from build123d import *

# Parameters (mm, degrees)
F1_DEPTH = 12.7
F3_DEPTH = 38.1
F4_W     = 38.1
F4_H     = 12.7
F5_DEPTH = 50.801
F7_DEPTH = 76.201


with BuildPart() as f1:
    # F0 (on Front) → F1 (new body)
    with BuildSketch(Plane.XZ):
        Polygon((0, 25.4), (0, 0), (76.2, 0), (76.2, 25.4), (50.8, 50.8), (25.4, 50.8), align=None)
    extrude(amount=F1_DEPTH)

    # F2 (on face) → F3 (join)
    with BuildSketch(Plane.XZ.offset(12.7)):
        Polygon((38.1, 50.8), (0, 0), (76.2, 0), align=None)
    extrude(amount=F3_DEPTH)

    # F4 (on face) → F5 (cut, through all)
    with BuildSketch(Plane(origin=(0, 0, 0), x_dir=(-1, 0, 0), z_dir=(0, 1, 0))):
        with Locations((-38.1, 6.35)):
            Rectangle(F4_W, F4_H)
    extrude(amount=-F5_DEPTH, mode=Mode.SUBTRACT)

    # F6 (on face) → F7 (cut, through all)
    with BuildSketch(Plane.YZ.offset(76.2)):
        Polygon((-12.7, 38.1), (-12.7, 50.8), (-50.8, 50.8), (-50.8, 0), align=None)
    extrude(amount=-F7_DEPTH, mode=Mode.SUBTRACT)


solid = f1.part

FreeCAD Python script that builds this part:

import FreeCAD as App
import Part
import Sketcher
from FreeCAD import Vector
Q = App.Units.Quantity


def add_polygon(sketch, points):
    """Adds a closed chain of lines whose ends are joined by coincident constraints."""
    first, n = sketch.GeometryCount, len(points)
    for a, b in zip(points, points[1:] + points[:1]):
        sketch.addGeometry(Part.LineSegment(App.Vector(*a, 0), App.Vector(*b, 0)), False)
    for i in range(n):
        sketch.addConstraint(Sketcher.Constraint("Coincident", first + i, 2, first + (i + 1) % n, 1))

doc = App.newDocument("Part")
params = doc.addObject("Spreadsheet::Sheet", "Params")
for row, (alias, value) in enumerate([
    ("sketch1_width", "3 in"),
    ("sketch1_width2", "1 in"),
    ("pad1_length", "0.5 in"),
    ("sketch2_width", "3 in"),
    ("pad2_length", "1.5 in"),
    ("sketch3_width", "1.5 in"),
    ("sketch3_height", "0.5 in"),
    ("sketch4_height", "2 in"),
    ("sketch4_width", "1.5 in"),
    ("sketch4_height2", "0.5 in"),
], start=1):
    params.set(f"A{row}", alias)
    params.set(f"B{row}", "=" + value)
    params.setAlias(f"B{row}", alias)

body = doc.addObject("PartDesign::Body", "Body")

sketch1 = doc.addObject("Sketcher::SketchObject", "Sketch")
body.addObject(sketch1)
sketch1.AttachmentSupport = (doc.XZ_Plane, [""])
sketch1.MapMode = "FlatFace"
add_polygon(sketch1, [(0, 25), (0, 0), (76, 0), (76, 25), (51, 51), (25, 51)])
sketch1.addConstraint([
    Sketcher.Constraint("Vertical", 0),
    Sketcher.Constraint("Horizontal", 1),
    Sketcher.Constraint("Vertical", 2),
    Sketcher.Constraint("Horizontal", 4),
    Sketcher.Constraint("Coincident", 0, 2, -1, 1),
    Sketcher.Constraint("Perpendicular", 3, 5),
    Sketcher.Constraint("Horizontal", 2, 2, 5, 2),
    Sketcher.Constraint("Equal", 4, 0),
    Sketcher.Constraint("Equal", 3, 5),
    Sketcher.Constraint("DistanceX", 1, 1, 1, 2, Q("3 in")),
    Sketcher.Constraint("DistanceX", 4, 2, 4, 1, Q("1 in")),
])
sketch1.setExpression("Constraints[15]", "Params.sketch1_width")
sketch1.setExpression("Constraints[16]", "Params.sketch1_width2")
pad1 = doc.addObject("PartDesign::Pad", "Pad")
body.addObject(pad1)
pad1.Profile = sketch1
pad1.setExpression("Length", "Params.pad1_length")

sketch2 = doc.addObject("Sketcher::SketchObject", "Sketch001")
body.addObject(sketch2)
sketch2.AttachmentSupport = (doc.XZ_Plane, [""])
sketch2.MapMode = "FlatFace"
sketch2.AttachmentOffset = App.Placement(Vector(0, 0, 0.5 * 25.4), App.Rotation())
add_polygon(sketch2, [(38, 51), (0, 0), (76, 0)])
sketch2.addConstraint([
    Sketcher.Constraint("Horizontal", 1),
    Sketcher.Constraint("Coincident", 0, 2, -1, 1),
    Sketcher.Constraint("Equal", 0, 2),
    Sketcher.Constraint("DistanceX", 1, 1, 1, 2, Q("3 in")),
    Sketcher.Constraint("DistanceY", -1, 1, 2, 2, Q("2 in")),
])
sketch2.setExpression("Constraints[6]", "Params.sketch2_width")
pad2 = doc.addObject("PartDesign::Pad", "Pad001")
body.addObject(pad2)
pad2.Profile = sketch2
pad2.setExpression("Length", "Params.pad2_length")

sketch3 = doc.addObject("Sketcher::SketchObject", "Sketch002")
body.addObject(sketch3)
sketch3.AttachmentSupport = (doc.XZ_Plane, [""])
sketch3.MapMode = "FlatFace"
add_polygon(sketch3, [(57, 13), (57, 0), (19, 0), (19, 13)])
sketch3.addConstraint([
    Sketcher.Constraint("Vertical", 0),
    Sketcher.Constraint("Horizontal", 1),
    Sketcher.Constraint("Vertical", 2),
    Sketcher.Constraint("Horizontal", 3),
    Sketcher.Constraint("PointOnObject", 0, 2, -1),
    Sketcher.Constraint("DistanceX", 1, 2, 1, 1, Q("1.5 in")),
    Sketcher.Constraint("DistanceY", 0, 2, 0, 1, Q("0.5 in")),
    Sketcher.Constraint("DistanceX", -1, 1, 0, 2, Q("2.25 in")),
])
sketch3.setExpression("Constraints[9]", "Params.sketch3_width")
sketch3.setExpression("Constraints[10]", "Params.sketch3_height")
pocket1 = doc.addObject("PartDesign::Pocket", "Pocket")
body.addObject(pocket1)
pocket1.Profile = sketch3
pocket1.Type = "ThroughAll"
pocket1.Reversed = True

sketch4 = doc.addObject("Sketcher::SketchObject", "Sketch003")
body.addObject(sketch4)
sketch4.AttachmentSupport = (doc.YZ_Plane, [""])
sketch4.MapMode = "FlatFace"
sketch4.AttachmentOffset = App.Placement(Vector(0, 0, 3 * 25.4), App.Rotation())
add_polygon(sketch4, [(-13, 38), (-13, 51), (-51, 51), (-51, 0)])
sketch4.addConstraint([
    Sketcher.Constraint("Vertical", 0),
    Sketcher.Constraint("Horizontal", 1),
    Sketcher.Constraint("Vertical", 2),
    Sketcher.Constraint("PointOnObject", 2, 2, -1),
    Sketcher.Constraint("DistanceY", 2, 2, 2, 1, Q("2 in")),
    Sketcher.Constraint("DistanceX", 1, 2, 1, 1, Q("1.5 in")),
    Sketcher.Constraint("DistanceY", 0, 1, 0, 2, Q("0.5 in")),
    Sketcher.Constraint("DistanceX", 1, 2, -1, 1, Q("2 in")),
])
sketch4.setExpression("Constraints[8]", "Params.sketch4_height")
sketch4.setExpression("Constraints[9]", "Params.sketch4_width")
sketch4.setExpression("Constraints[10]", "Params.sketch4_height2")
pocket2 = doc.addObject("PartDesign::Pocket", "Pocket001")
body.addObject(pocket2)
pocket2.Profile = sketch4
pocket2.Type = "ThroughAll"

doc.recompute()
